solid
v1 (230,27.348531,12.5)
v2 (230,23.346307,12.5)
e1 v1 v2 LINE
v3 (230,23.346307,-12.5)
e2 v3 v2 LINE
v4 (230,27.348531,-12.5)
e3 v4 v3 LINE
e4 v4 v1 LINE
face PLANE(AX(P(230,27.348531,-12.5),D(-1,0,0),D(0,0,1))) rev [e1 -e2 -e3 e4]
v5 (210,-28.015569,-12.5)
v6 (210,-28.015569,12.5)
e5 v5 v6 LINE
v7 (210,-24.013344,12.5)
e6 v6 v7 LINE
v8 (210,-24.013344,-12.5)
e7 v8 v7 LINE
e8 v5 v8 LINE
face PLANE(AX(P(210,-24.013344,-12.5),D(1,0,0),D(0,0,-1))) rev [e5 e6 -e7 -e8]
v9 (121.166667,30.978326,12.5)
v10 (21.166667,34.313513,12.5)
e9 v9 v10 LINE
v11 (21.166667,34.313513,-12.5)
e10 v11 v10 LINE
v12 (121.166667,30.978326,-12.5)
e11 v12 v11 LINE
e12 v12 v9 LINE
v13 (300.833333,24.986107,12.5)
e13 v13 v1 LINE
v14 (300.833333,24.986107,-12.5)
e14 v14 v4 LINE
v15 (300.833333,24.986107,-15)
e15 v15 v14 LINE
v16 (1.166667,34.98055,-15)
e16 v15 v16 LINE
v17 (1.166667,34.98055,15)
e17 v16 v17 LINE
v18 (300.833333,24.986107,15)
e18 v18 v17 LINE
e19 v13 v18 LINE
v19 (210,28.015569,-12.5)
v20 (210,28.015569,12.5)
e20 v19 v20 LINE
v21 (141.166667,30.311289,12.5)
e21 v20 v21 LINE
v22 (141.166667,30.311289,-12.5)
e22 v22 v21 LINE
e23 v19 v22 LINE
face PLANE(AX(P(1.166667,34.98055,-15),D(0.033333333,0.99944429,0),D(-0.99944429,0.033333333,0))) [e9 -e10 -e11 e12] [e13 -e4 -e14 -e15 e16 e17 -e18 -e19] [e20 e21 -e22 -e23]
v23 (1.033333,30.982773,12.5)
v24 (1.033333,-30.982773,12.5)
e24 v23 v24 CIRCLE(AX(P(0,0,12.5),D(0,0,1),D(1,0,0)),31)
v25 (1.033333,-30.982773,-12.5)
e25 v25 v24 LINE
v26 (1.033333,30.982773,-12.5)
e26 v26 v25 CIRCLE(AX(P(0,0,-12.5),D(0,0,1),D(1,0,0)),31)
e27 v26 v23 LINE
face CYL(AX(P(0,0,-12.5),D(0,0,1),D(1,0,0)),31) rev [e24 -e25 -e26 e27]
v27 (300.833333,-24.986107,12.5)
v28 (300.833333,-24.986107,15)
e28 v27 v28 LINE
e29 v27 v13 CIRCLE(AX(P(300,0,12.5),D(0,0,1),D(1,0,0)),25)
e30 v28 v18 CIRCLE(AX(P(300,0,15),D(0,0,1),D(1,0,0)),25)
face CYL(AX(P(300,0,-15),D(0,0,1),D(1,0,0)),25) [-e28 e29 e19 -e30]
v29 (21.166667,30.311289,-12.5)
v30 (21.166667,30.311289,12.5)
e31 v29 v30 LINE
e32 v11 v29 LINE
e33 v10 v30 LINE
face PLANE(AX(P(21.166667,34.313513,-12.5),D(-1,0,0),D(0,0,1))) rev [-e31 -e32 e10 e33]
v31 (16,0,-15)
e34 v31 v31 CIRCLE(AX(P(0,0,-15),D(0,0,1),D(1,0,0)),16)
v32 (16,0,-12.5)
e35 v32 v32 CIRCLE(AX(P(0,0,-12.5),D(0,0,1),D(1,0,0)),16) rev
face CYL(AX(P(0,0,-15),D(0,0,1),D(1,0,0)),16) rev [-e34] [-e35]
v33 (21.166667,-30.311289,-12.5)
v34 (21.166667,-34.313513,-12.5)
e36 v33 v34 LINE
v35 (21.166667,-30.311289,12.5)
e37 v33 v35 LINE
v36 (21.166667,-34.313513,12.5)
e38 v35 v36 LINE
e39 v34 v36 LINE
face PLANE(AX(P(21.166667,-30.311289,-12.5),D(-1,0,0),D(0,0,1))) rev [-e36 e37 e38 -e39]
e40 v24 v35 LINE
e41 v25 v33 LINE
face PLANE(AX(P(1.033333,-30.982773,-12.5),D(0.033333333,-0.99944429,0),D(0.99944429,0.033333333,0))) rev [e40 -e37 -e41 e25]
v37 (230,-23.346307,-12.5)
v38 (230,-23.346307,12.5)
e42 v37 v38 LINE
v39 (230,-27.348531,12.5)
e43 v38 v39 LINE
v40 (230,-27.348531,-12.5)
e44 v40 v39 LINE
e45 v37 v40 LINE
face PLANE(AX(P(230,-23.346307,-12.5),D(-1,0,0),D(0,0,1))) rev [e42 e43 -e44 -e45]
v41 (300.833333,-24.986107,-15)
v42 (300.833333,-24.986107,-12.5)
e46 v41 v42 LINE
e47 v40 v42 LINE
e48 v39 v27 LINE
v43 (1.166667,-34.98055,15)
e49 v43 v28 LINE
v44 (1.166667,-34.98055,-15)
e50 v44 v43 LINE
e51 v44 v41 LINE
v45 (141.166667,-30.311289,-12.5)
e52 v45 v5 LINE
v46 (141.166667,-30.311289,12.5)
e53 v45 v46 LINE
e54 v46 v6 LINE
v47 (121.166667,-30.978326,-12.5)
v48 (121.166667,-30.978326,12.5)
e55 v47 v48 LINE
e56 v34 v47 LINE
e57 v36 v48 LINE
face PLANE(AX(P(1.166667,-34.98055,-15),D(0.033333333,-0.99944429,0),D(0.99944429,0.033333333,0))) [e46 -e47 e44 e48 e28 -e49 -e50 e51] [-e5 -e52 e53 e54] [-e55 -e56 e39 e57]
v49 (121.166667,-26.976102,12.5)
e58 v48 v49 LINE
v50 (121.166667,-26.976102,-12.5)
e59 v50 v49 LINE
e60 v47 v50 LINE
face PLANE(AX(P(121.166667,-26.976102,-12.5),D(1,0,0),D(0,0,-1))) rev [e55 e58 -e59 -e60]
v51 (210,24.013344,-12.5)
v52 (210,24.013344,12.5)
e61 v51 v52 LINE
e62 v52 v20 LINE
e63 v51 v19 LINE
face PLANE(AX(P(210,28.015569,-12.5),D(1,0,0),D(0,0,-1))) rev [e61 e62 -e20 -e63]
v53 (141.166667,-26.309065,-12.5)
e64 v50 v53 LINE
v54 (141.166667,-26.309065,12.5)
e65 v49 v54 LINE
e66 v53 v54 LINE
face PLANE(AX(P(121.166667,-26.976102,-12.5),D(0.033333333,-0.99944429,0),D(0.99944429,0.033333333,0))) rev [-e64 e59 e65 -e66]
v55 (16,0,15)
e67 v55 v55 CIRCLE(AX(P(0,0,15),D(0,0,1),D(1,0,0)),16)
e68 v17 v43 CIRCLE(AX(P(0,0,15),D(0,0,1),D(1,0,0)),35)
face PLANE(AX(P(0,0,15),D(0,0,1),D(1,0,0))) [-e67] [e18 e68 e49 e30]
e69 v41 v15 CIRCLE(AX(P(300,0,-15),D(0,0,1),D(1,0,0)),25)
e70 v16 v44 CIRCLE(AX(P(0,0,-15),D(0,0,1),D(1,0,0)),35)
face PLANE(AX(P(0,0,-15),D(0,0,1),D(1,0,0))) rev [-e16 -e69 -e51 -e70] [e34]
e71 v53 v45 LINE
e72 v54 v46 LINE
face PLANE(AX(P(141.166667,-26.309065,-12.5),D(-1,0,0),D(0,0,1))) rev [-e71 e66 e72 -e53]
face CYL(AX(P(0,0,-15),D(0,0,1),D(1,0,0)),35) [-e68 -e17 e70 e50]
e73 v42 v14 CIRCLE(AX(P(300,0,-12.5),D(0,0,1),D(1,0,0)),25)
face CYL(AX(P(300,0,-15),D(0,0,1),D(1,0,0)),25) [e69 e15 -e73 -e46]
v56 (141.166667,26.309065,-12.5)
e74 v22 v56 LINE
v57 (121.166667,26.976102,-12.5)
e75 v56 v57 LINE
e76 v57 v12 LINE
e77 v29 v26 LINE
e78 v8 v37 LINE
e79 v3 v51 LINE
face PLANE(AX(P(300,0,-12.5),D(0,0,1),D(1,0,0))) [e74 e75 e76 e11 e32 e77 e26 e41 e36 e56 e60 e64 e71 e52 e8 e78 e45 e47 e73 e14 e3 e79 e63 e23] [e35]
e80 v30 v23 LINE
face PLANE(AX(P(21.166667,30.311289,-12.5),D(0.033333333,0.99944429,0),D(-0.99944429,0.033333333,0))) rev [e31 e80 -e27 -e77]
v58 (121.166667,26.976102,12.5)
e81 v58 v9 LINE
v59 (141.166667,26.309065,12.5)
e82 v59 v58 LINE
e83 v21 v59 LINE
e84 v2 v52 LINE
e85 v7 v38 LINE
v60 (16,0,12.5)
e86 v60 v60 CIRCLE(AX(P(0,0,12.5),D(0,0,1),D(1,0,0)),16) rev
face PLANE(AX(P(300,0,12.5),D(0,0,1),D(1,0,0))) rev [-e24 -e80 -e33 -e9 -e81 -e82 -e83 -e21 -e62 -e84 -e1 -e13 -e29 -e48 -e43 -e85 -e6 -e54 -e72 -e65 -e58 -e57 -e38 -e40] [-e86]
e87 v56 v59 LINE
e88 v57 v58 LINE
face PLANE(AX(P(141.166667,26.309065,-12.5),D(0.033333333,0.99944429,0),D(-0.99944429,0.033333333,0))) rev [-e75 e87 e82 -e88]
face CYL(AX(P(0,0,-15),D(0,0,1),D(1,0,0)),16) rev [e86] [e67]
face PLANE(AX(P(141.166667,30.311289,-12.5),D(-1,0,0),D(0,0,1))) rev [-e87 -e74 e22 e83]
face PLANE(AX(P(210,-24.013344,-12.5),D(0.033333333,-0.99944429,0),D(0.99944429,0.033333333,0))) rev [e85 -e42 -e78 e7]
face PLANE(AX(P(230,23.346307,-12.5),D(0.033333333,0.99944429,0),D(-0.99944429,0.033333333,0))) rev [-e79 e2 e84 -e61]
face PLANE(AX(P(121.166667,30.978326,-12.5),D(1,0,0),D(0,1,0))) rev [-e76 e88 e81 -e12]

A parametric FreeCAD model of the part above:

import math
import FreeCAD as App
import Part
import Sketcher

doc = App.newDocument("Part")
body = doc.addObject("PartDesign::Body", "Body")

sketch1 = doc.addObject("Sketcher::SketchObject", "Sketch")
body.addObject(sketch1)
sketch1.AttachmentSupport = (doc.XY_Plane, [""])
sketch1.MapMode = "FlatFace"
sketch1.addGeometry(Part.LineSegment(App.Vector(301, 25, 0), App.Vector(1, 35, 0)), False)
sketch1.addGeometry(Part.ArcOfCircle(Part.Circle(App.Vector(0, 0, 0), App.Vector(0, 0, 1), 35), math.radians(88), math.radians(272)), False)
sketch1.addGeometry(Part.LineSegment(App.Vector(1, -35, 0), App.Vector(301, -25, 0)), False)
sketch1.addGeometry(Part.ArcOfCircle(Part.Circle(App.Vector(300, 0, 0), App.Vector(0, 0, 1), 25), math.radians(-88), math.radians(88)), False)
sketch1.addConstraint(Sketcher.Constraint("Tangent", 0, 2, 1, 1))
sketch1.addConstraint(Sketcher.Constraint("Tangent", 1, 2, 2, 1))
sketch1.addConstraint(Sketcher.Constraint("Tangent", 2, 2, 3, 1))
sketch1.addConstraint(Sketcher.Constraint("Tangent", 3, 2, 0, 1))
sketch1.addConstraint(Sketcher.Constraint("Coincident", 1, 3, -1, 1))
sketch1.addConstraint(Sketcher.Constraint("PointOnObject", 3, 3, -1))
sketch1.addConstraint(Sketcher.Constraint("Radius", 1, 35.0))
sketch1.addConstraint(Sketcher.Constraint("Radius", 3, 25.0))
sketch1.addConstraint(Sketcher.Constraint("DistanceX", -1, 1, 3, 3, 300.0))
pad1 = doc.addObject("PartDesign::Pad", "Pad")
body.addObject(pad1)
pad1.Profile = sketch1
pad1.Length = 30
pad1.Midplane = True

sketch2 = doc.addObject("Sketcher::SketchObject", "Sketch001")
body.addObject(sketch2)
sketch2.AttachmentSupport = (doc.XY_Plane, [""])
sketch2.MapMode = "FlatFace"
sketch2.addGeometry(Part.Circle(App.Vector(0, 0, 0), App.Vector(0, 0, 1), 16), False)
sketch2.addConstraint(Sketcher.Constraint("Coincident", 0, 3, -1, 1))
sketch2.addConstraint(Sketcher.Constraint("Diameter", 0, 32.0))
pocket1 = doc.addObject("PartDesign::Pocket", "Pocket")
body.addObject(pocket1)
pocket1.Profile = sketch2
pocket1.Type = "ThroughAll"
pocket1.Midplane = True

sketch3 = doc.addObject("Sketcher::SketchObject", "Sketch002")
body.addObject(sketch3)
sketch3.AttachmentSupport = (doc.XY_Plane, [""])
sketch3.MapMode = "FlatFace"
sketch3.addGeometry(Part.LineSegment(App.Vector(230, 23.3, 0), App.Vector(210, 24, 0)), False)
sketch3.addGeometry(Part.LineSegment(App.Vector(210, 24, 0), App.Vector(210, 28, 0)), False)
sketch3.addGeometry(Part.LineSegment(App.Vector(210, 28, 0), App.Vector(141.2, 30.3, 0)), False)
sketch3.addGeometry(Part.LineSegment(App.Vector(141.2, 30.3, 0), App.Vector(141.2, 26.3, 0)), False)
sketch3.addGeometry(Part.LineSegment(App.Vector(141.2, 26.3, 0), App.Vector(121.2, 27, 0)), False)
sketch3.addGeometry(Part.LineSegment(App.Vector(121.2, 27, 0), App.Vector(121.2, 31, 0)), False)
sketch3.addGeometry(Part.LineSegment(App.Vector(121.2, 31, 0), App.Vector(21.2, 34.3, 0)), False)
sketch3.addGeometry(Part.LineSegment(App.Vector(21.2, 34.3, 0), App.Vector(21.2, 30.3, 0)), False)
sketch3.addGeometry(Part.LineSegment(App.Vector(21.2, 30.3, 0), App.Vector(1, 31, 0)), False)
sketch3.addGeometry(Part.ArcOfCircle(Part.Circle(App.Vector(0, 0, 0), App.Vector(0, 0, 1), 31), math.radians(88), math.radians(272)), False)
sketch3.addGeometry(Part.LineSegment(App.Vector(1, -31, 0), App.Vector(21.2, -30.3, 0)), False)
sketch3.addGeometry(Part.LineSegment(App.Vector(21.2, -30.3, 0), App.Vector(21.2, -34.3, 0)), False)
sketch3.addGeometry(Part.LineSegment(App.Vector(21.2, -34.3, 0), App.Vector(121.2, -31, 0)), False)
sketch3.addGeometry(Part.LineSegment(App.Vector(121.2, -31, 0), App.Vector(121.2, -27, 0)), False)
sketch3.addGeometry(Part.LineSegment(App.Vector(121.2, -27, 0), App.Vector(141.2, -26.3, 0)), False)
sketch3.addGeometry(Part.LineSegment(App.Vector(141.2, -26.3, 0), App.Vector(141.2, -30.3, 0)), False)
sketch3.addGeometry(Part.LineSegment(App.Vector(141.2, -30.3, 0), App.Vector(210, -28, 0)), False)
sketch3.addGeometry(Part.LineSegment(App.Vector(210, -28, 0), App.Vector(210, -24, 0)), False)
sketch3.addGeometry(Part.LineSegment(App.Vector(210, -24, 0), App.Vector(230, -23.3, 0)), False)
sketch3.addGeometry(Part.LineSegment(App.Vector(230, -23.3, 0), App.Vector(230, -27.3, 0)), False)
sketch3.addGeometry(Part.LineSegment(App.Vector(230, -27.3, 0), App.Vector(300.8, -25, 0)), False)
sketch3.addGeometry(Part.ArcOfCircle(Part.Circle(App.Vector(300, 0, 0), App.Vector(0, 0, 1), 25), math.radians(-88), math.radians(88)), False)
sketch3.addGeometry(Part.LineSegment(App.Vector(300.8, 25, 0), App.Vector(230, 27.3, 0)), False)
sketch3.addGeometry(Part.LineSegment(App.Vector(230, 27.3, 0), App.Vector(230, 23.3, 0)), False)
sketch3.addConstraint(Sketcher.Constraint("Coincident", 0, 2, 1, 1))
sketch3.addConstraint(Sketcher.Constraint("Coincident", 1, 2, 2, 1))
sketch3.addConstraint(Sketcher.Constraint("Coincident", 2, 2, 3, 1))
sketch3.addConstraint(Sketcher.Constraint("Coincident", 3, 2, 4, 1))
sketch3.addConstraint(Sketcher.Constraint("Coincident", 4, 2, 5, 1))
sketch3.addConstraint(Sketcher.Constraint("Coincident", 5, 2, 6, 1))
sketch3.addConstraint(Sketcher.Constraint("Coincident", 6, 2, 7, 1))
sketch3.addConstraint(Sketcher.Constraint("Coincident", 7, 2, 8, 1))
sketch3.addConstraint(Sketcher.Constraint("Tangent", 8, 2, 9, 1))
sketch3.addConstraint(Sketcher.Constraint("Tangent", 9, 2, 10, 1))
sketch3.addConstraint(Sketcher.Constraint("Coincident", 10, 2, 11, 1))
sketch3.addConstraint(Sketcher.Constraint("Coincident", 11, 2, 12, 1))
sketch3.addConstraint(Sketcher.Constraint("Coincident", 12, 2, 13, 1))
sketch3.addConstraint(Sketcher.Constraint("Coincident", 13, 2, 14, 1))
sketch3.addConstraint(Sketcher.Constraint("Coincident", 14, 2, 15, 1))
sketch3.addConstraint(Sketcher.Constraint("Coincident", 15, 2, 16, 1))
sketch3.addConstraint(Sketcher.Constraint("Coincident", 16, 2, 17, 1))
sketch3.addConstraint(Sketcher.Constraint("Coincident", 17, 2, 18, 1))
sketch3.addConstraint(Sketcher.Constraint("Coincident", 18, 2, 19, 1))
sketch3.addConstraint(Sketcher.Constraint("Coincident", 19, 2, 20, 1))
sketch3.addConstraint(Sketcher.Constraint("Tangent", 20, 2, 21, 1))
sketch3.addConstraint(Sketcher.Constraint("Tangent", 21, 2, 22, 1))
sketch3.addConstraint(Sketcher.Constraint("Coincident", 22, 2, 23, 1))
sketch3.addConstraint(Sketcher.Constraint("Coincident", 23, 2, 0, 1))
sketch3.addConstraint(Sketcher.Constraint("Vertical", 1))
sketch3.addConstraint(Sketcher.Constraint("Vertical", 3))
sketch3.addConstraint(Sketcher.Constraint("Vertical", 5))
sketch3.addConstraint(Sketcher.Constraint("Vertical", 7))
sketch3.addConstraint(Sketcher.Constraint("Vertical", 11))
sketch3.addConstraint(Sketcher.Constraint("Vertical", 13))
sketch3.addConstraint(Sketcher.Constraint("Vertical", 15))
sketch3.addConstraint(Sketcher.Constraint("Vertical", 17))
sketch3.addConstraint(Sketcher.Constraint("Vertical", 19))
sketch3.addConstraint(Sketcher.Constraint("Vertical", 23))
sketch3.addConstraint(Sketcher.Constraint("Coincident", 9, 3, -1, 1))
sketch3.addConstraint(Sketcher.Constraint("Symmetric", 7, 2, 10, 2, -1))
sketch3.addConstraint(Sketcher.Constraint("Symmetric", 5, 2, 12, 2, -1))
sketch3.addConstraint(Sketcher.Constraint("Symmetric", 3, 2, 14, 2, -1))
sketch3.addConstraint(Sketcher.Constraint("Symmetric", 1, 2, 16, 2, -1))
sketch3.addConstraint(Sketcher.Constraint("Symmetric", 20, 2, 21, 2, -1))
sketch3.addConstraint(Sketcher.Constraint("Symmetric", 18, 2, 23, 2, -1))
sketch3.addConstraint(Sketcher.Constraint("Parallel", 0, 2))
sketch3.addConstraint(Sketcher.Constraint("Parallel", 2, 4))
sketch3.addConstraint(Sketcher.Constraint("Parallel", 4, 6))
sketch3.addConstraint(Sketcher.Constraint("Parallel", 6, 8))
sketch3.addConstraint(Sketcher.Constraint("Parallel", 10, 12))
sketch3.addConstraint(Sketcher.Constraint("Parallel", 12, 14))
sketch3.addConstraint(Sketcher.Constraint("Parallel", 14, 16))
sketch3.addConstraint(Sketcher.Constraint("Parallel", 16, 18))
sketch3.addConstraint(Sketcher.Constraint("Parallel", 18, 20))
sketch3.addConstraint(Sketcher.Constraint("Horizontal", 2, 2, 7, 2))
sketch3.addConstraint(Sketcher.Constraint("Equal", 1, 3))
sketch3.addConstraint(Sketcher.Constraint("Equal", 3, 5))
sketch3.addConstraint(Sketcher.Constraint("Equal", 5, 7))
sketch3.addConstraint(Sketcher.Constraint("Equal", 17, 19))
sketch3.addConstraint(Sketcher.Constraint("Equal", 0, 4))
sketch3.addConstraint(Sketcher.Constraint("Radius", 9, 31.0))
sketch3.addConstraint(Sketcher.Constraint("Radius", 21, 25.0))
sketch3.addConstraint(Sketcher.Constraint("DistanceX", -1, 1, 21, 3, 300.0))
sketch3.addConstraint(Sketcher.Constraint("DistanceX", -1, 1, 0, 2, 210.0))
sketch3.addConstraint(Sketcher.Constraint("DistanceX", -1, 1, 18, 2, 230.0))
sketch3.addConstraint(Sketcher.Constraint("DistanceX", 6, 2, 5, 2, 100.0))
sketch3.addConstraint(Sketcher.Constraint("DistanceY", 10, 2, 6, 2, 64.624802))
pocket2 = doc.addObject("PartDesign::Pocket", "Pocket001")
body.addObject(pocket2)
pocket2.Profile = sketch3
pocket2.Length = 25
pocket2.Midplane = True

doc.recompute()
